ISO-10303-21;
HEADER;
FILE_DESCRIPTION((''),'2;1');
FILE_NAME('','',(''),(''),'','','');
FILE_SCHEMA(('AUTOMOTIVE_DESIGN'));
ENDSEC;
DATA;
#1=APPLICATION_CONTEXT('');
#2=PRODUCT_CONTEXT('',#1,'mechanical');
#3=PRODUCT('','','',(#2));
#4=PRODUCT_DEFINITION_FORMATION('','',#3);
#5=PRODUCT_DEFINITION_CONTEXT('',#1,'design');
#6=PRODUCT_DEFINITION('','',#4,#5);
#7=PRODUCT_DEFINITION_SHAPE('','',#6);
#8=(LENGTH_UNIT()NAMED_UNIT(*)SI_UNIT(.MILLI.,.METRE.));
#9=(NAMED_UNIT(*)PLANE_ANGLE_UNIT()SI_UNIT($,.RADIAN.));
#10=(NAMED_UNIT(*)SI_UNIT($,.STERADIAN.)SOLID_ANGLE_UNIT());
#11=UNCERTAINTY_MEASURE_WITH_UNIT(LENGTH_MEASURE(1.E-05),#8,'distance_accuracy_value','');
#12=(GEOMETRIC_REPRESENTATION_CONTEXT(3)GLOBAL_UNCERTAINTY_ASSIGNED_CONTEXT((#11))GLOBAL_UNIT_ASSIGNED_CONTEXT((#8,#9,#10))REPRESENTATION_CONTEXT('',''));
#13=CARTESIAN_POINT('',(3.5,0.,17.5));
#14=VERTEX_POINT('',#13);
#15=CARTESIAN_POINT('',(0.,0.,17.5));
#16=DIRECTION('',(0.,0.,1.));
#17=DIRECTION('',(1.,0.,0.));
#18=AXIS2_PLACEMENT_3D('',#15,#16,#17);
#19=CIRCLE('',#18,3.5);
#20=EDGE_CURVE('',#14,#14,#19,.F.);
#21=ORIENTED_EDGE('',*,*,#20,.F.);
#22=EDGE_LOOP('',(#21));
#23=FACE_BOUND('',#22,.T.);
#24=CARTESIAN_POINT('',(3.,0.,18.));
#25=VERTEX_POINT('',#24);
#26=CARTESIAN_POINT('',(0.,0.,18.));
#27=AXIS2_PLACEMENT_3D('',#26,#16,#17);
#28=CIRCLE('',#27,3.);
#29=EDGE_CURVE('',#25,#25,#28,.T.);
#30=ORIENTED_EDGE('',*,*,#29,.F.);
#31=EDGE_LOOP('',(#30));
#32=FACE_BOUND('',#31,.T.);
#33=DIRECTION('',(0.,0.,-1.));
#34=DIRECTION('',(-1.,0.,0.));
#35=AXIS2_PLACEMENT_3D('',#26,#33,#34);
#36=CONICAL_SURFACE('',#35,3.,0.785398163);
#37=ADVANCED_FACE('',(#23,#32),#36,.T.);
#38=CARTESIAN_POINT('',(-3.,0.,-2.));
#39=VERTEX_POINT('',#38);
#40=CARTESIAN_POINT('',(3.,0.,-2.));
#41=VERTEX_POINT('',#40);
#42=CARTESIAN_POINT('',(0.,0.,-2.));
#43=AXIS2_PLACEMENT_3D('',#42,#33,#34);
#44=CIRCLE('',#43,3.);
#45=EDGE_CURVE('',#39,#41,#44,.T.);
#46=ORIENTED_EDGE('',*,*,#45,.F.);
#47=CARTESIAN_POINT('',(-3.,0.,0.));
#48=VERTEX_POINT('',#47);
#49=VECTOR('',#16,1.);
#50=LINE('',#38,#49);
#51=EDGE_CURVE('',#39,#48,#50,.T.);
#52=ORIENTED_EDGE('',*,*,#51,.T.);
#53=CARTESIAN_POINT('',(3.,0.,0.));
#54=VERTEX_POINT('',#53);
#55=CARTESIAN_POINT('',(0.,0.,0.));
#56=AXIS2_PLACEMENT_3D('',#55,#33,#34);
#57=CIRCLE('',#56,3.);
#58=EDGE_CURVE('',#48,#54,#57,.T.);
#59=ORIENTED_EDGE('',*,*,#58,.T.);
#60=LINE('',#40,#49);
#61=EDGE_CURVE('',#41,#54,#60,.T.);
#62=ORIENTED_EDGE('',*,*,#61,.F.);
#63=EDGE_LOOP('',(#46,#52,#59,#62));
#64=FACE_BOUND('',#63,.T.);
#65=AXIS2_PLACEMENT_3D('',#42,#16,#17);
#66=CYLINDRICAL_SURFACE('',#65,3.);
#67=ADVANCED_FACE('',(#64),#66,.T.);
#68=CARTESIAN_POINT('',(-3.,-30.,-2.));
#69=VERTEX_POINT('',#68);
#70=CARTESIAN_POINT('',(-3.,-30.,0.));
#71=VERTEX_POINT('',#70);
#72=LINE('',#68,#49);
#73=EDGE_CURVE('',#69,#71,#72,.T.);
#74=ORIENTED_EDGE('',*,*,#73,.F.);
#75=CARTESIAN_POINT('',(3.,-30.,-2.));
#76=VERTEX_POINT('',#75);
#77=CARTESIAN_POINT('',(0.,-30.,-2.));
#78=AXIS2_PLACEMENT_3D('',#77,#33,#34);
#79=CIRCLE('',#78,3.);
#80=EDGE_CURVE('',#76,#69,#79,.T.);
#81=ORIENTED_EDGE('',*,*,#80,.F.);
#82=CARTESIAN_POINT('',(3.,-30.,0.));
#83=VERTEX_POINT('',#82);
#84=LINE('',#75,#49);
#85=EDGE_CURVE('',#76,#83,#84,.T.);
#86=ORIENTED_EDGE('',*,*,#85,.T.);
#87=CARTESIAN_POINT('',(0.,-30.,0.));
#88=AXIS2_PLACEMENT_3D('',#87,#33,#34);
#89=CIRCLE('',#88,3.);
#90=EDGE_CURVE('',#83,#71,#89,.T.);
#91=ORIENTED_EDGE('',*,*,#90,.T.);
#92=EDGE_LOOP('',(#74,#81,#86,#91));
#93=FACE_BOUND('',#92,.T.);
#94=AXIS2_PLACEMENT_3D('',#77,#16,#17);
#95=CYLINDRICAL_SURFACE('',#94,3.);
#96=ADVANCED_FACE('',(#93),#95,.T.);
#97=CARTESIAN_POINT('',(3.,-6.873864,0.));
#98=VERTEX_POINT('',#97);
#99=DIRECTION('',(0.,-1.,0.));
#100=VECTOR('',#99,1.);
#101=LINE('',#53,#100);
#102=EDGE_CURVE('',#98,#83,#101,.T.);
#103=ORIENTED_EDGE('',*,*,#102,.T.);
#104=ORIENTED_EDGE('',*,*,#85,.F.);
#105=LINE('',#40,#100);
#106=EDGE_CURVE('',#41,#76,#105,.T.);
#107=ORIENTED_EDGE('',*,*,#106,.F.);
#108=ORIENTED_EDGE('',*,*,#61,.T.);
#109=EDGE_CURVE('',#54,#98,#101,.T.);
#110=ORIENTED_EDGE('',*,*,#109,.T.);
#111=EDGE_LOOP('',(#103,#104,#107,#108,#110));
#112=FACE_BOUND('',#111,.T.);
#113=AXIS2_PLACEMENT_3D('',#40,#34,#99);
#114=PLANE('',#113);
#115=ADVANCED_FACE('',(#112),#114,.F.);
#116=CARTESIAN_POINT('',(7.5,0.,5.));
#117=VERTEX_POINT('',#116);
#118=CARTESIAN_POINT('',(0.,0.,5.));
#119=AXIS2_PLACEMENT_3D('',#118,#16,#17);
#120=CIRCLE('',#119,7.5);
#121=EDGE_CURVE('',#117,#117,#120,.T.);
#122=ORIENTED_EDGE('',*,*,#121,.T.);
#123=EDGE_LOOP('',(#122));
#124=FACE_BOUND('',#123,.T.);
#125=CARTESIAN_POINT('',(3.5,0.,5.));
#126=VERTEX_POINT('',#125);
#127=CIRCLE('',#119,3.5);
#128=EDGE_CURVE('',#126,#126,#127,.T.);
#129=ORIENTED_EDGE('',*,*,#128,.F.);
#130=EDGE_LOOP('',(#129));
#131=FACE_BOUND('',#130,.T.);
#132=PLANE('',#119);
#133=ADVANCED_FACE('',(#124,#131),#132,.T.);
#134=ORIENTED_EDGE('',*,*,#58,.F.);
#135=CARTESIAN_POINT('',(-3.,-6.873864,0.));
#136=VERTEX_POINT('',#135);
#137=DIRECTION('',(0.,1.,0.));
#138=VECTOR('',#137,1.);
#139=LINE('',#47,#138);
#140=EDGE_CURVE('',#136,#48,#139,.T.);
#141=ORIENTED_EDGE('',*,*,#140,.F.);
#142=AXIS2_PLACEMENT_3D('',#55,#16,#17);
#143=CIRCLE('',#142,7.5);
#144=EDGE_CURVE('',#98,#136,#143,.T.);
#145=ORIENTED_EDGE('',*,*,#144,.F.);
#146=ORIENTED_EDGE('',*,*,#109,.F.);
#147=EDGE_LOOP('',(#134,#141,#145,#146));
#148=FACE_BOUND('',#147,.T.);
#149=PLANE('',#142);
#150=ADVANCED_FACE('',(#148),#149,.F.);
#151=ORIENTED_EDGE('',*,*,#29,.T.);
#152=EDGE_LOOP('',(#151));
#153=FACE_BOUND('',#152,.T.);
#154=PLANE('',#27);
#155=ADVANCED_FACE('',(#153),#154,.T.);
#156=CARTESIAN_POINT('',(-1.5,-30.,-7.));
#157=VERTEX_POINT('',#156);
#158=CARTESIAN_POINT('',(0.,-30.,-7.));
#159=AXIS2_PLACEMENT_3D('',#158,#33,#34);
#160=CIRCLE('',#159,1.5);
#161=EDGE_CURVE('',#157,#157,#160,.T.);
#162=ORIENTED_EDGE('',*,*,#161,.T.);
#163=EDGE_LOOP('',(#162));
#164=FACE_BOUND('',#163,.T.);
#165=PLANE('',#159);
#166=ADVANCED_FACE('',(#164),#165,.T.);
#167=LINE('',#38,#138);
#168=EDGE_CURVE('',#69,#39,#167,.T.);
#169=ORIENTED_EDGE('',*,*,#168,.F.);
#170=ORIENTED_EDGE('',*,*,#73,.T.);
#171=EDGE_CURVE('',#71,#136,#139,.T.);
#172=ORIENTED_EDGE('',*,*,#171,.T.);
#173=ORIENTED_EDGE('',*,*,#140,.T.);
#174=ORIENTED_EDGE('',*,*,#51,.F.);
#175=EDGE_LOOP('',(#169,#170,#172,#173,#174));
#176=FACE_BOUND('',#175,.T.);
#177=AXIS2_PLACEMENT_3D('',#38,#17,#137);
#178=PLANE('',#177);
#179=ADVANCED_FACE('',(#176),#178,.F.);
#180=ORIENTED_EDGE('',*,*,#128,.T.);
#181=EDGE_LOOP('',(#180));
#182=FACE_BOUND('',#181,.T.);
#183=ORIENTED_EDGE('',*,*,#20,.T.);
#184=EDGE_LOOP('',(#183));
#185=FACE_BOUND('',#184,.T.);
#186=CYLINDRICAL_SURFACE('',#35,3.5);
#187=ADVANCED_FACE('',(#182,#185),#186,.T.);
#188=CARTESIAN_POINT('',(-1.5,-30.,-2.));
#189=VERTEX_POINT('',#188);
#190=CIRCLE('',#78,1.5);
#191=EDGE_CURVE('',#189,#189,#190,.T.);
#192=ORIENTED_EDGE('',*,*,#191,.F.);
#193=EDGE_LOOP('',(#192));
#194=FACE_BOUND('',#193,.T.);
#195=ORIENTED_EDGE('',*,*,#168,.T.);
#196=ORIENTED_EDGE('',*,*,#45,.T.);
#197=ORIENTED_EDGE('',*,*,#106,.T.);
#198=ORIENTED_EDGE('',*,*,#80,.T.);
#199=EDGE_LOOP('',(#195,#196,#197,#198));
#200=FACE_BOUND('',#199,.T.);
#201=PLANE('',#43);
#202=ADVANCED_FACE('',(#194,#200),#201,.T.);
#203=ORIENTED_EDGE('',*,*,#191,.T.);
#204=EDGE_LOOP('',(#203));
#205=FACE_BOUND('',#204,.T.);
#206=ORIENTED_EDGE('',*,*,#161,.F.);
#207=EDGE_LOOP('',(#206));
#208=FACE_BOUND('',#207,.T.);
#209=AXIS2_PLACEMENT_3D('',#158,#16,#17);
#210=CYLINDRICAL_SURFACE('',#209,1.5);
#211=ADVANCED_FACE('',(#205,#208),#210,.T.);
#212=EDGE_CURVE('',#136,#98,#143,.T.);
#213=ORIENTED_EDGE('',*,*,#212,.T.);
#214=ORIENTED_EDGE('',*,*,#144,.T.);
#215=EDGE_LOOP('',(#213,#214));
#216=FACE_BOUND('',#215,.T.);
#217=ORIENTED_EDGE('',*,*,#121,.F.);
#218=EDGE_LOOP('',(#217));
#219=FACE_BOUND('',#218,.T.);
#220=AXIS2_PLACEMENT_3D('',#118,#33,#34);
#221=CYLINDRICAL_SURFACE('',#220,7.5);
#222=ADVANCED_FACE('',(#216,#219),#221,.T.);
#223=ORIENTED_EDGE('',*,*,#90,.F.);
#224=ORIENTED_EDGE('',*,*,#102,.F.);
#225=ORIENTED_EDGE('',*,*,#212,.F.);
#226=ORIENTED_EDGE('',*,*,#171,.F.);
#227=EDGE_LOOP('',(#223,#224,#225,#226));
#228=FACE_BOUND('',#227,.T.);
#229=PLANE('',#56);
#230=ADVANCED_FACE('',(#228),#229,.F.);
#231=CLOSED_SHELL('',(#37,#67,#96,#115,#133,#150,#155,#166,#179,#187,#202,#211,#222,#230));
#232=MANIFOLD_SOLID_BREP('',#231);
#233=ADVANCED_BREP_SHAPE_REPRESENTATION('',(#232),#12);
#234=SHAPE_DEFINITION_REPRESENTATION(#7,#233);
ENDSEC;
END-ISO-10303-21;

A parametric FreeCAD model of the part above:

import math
import FreeCAD as App
import Part
import Sketcher


def edges_at(feature, points):
    """Names of the edges that pass closest to the given points."""
    edges = feature.Shape.Edges
    near = lambda p: min(range(len(edges)), key=lambda i: edges[i].distToShape(Part.Vertex(*p))[0])
    return sorted({f"Edge{near(p) + 1}" for p in points})

doc = App.newDocument("Part")
params = doc.addObject("Spreadsheet::Sheet", "Params")
for row, (alias, value) in enumerate([
    ("sketch1_diameter", "15 mm"),
    ("pad1_length", "5 mm"),
    ("sketch2_diameter", "7 mm"),
    ("pad2_length", "13 mm"),
    ("chamfer_size", "0.5 mm"),
    ("sketch3_radius", "3 mm"),
    ("sketch3_height", "30 mm"),
    ("pad3_length", "2 mm"),
    ("sketch4_diameter", "3 mm"),
    ("pad4_length", "5 mm"),
], start=1):
    params.set(f"A{row}", alias)
    params.set(f"B{row}", "=" + value)
    params.setAlias(f"B{row}", alias)

body = doc.addObject("PartDesign::Body", "Body")

sketch1 = body.newObject("Sketcher::SketchObject", "Sketch")
sketch1.AttachmentSupport = (doc.getObject("XY_Plane"), [""])
sketch1.MapMode = "FlatFace"
sketch1.addGeometry(Part.Circle(App.Vector(0, 0, 0), App.Vector(0, 0, 1), 8), False)
sketch1.addConstraint(Sketcher.Constraint("Coincident", 0, 3, -1, 1))
sketch1.addConstraint(Sketcher.Constraint("Diameter", 0, 15.0))
sketch1.setExpression("Constraints[1]", "Params.sketch1_diameter")
pad1 = body.newObject("PartDesign::Pad", "Pad")
pad1.Profile = sketch1
pad1.setExpression("Length", "Params.pad1_length")

sketch2 = body.newObject("Sketcher::SketchObject", "Sketch001")
sketch2.AttachmentSupport = (doc.getObject("XY_Plane"), [""])
sketch2.MapMode = "FlatFace"
sketch2.AttachmentOffset = App.Placement(App.Vector(0, 0, 5), App.Rotation())
sketch2.addGeometry(Part.Circle(App.Vector(0, 0, 0), App.Vector(0, 0, 1), 3.5), False)
sketch2.addConstraint(Sketcher.Constraint("Coincident", 0, 3, -1, 1))
sketch2.addConstraint(Sketcher.Constraint("Diameter", 0, 7.0))
sketch2.setExpression("Constraints[1]", "Params.sketch2_diameter")
pad2 = body.newObject("PartDesign::Pad", "Pad001")
pad2.Profile = sketch2
pad2.setExpression("Length", "Params.pad2_length")
doc.recompute()

chamfer = body.newObject("PartDesign::Chamfer", "Chamfer")
chamfer.Base = (pad2, edges_at(pad2, [(-3.5, 0, 18)]))
chamfer.setExpression("Size", "Params.chamfer_size")

sketch3 = body.newObject("Sketcher::SketchObject", "Sketch002")
sketch3.AttachmentSupport = (doc.getObject("XY_Plane"), [""])
sketch3.MapMode = "FlatFace"
sketch3.addGeometry(Part.LineSegment(App.Vector(-3, -30, 0), App.Vector(-3, 0, 0)), False)
sketch3.addGeometry(Part.ArcOfCircle(Part.Circle(App.Vector(0, 0, 0), App.Vector(0, 0, 1), 3), math.radians(0), math.radians(180)), False)
sketch3.addGeometry(Part.LineSegment(App.Vector(3, 0, 0), App.Vector(3, -30, 0)), False)
sketch3.addGeometry(Part.ArcOfCircle(Part.Circle(App.Vector(0, -30, 0), App.Vector(0, 0, 1), 3), math.radians(180), math.radians(360)), False)
sketch3.addConstraint(Sketcher.Constraint("Tangent", 0, 2, 1, 2))
sketch3.addConstraint(Sketcher.Constraint("Tangent", 1, 1, 2, 1))
sketch3.addConstraint(Sketcher.Constraint("Tangent", 2, 2, 3, 2))
sketch3.addConstraint(Sketcher.Constraint("Tangent", 3, 1, 0, 1))
sketch3.addConstraint(Sketcher.Constraint("Vertical", 0))
sketch3.addConstraint(Sketcher.Constraint("Vertical", 2))
sketch3.addConstraint(Sketcher.Constraint("Coincident", 1, 3, -1, 1))
sketch3.addConstraint(Sketcher.Constraint("Radius", 1, 3.0))
sketch3.addConstraint(Sketcher.Constraint("DistanceY", 0, 1, 0, 2, 30.0))
sketch3.setExpression("Constraints[7]", "Params.sketch3_radius")
sketch3.setExpression("Constraints[8]", "Params.sketch3_height")
pad3 = body.newObject("PartDesign::Pad", "Pad002")
pad3.Profile = sketch3
pad3.setExpression("Length", "Params.pad3_length")
pad3.Reversed = True

sketch4 = body.newObject("Sketcher::SketchObject", "Sketch003")
sketch4.AttachmentSupport = (doc.getObject("XY_Plane"), [""])
sketch4.MapMode = "FlatFace"
sketch4.AttachmentOffset = App.Placement(App.Vector(0, 0, -2), App.Rotation())
sketch4.addGeometry(Part.Circle(App.Vector(0, -30, 0), App.Vector(0, 0, 1), 1.5), False)
sketch4.addConstraint(Sketcher.Constraint("PointOnObject", 0, 3, -2))
sketch4.addConstraint(Sketcher.Constraint("Diameter", 0, 3.0))
sketch4.addConstraint(Sketcher.Constraint("DistanceY", 0, 3, -1, 1, 30.0))
sketch4.setExpression("Constraints[1]", "Params.sketch4_diameter")
pad4 = body.newObject("PartDesign::Pad", "Pad003")
pad4.Profile = sketch4
pad4.setExpression("Length", "Params.pad4_length")
pad4.Reversed = True

doc.recompute()
